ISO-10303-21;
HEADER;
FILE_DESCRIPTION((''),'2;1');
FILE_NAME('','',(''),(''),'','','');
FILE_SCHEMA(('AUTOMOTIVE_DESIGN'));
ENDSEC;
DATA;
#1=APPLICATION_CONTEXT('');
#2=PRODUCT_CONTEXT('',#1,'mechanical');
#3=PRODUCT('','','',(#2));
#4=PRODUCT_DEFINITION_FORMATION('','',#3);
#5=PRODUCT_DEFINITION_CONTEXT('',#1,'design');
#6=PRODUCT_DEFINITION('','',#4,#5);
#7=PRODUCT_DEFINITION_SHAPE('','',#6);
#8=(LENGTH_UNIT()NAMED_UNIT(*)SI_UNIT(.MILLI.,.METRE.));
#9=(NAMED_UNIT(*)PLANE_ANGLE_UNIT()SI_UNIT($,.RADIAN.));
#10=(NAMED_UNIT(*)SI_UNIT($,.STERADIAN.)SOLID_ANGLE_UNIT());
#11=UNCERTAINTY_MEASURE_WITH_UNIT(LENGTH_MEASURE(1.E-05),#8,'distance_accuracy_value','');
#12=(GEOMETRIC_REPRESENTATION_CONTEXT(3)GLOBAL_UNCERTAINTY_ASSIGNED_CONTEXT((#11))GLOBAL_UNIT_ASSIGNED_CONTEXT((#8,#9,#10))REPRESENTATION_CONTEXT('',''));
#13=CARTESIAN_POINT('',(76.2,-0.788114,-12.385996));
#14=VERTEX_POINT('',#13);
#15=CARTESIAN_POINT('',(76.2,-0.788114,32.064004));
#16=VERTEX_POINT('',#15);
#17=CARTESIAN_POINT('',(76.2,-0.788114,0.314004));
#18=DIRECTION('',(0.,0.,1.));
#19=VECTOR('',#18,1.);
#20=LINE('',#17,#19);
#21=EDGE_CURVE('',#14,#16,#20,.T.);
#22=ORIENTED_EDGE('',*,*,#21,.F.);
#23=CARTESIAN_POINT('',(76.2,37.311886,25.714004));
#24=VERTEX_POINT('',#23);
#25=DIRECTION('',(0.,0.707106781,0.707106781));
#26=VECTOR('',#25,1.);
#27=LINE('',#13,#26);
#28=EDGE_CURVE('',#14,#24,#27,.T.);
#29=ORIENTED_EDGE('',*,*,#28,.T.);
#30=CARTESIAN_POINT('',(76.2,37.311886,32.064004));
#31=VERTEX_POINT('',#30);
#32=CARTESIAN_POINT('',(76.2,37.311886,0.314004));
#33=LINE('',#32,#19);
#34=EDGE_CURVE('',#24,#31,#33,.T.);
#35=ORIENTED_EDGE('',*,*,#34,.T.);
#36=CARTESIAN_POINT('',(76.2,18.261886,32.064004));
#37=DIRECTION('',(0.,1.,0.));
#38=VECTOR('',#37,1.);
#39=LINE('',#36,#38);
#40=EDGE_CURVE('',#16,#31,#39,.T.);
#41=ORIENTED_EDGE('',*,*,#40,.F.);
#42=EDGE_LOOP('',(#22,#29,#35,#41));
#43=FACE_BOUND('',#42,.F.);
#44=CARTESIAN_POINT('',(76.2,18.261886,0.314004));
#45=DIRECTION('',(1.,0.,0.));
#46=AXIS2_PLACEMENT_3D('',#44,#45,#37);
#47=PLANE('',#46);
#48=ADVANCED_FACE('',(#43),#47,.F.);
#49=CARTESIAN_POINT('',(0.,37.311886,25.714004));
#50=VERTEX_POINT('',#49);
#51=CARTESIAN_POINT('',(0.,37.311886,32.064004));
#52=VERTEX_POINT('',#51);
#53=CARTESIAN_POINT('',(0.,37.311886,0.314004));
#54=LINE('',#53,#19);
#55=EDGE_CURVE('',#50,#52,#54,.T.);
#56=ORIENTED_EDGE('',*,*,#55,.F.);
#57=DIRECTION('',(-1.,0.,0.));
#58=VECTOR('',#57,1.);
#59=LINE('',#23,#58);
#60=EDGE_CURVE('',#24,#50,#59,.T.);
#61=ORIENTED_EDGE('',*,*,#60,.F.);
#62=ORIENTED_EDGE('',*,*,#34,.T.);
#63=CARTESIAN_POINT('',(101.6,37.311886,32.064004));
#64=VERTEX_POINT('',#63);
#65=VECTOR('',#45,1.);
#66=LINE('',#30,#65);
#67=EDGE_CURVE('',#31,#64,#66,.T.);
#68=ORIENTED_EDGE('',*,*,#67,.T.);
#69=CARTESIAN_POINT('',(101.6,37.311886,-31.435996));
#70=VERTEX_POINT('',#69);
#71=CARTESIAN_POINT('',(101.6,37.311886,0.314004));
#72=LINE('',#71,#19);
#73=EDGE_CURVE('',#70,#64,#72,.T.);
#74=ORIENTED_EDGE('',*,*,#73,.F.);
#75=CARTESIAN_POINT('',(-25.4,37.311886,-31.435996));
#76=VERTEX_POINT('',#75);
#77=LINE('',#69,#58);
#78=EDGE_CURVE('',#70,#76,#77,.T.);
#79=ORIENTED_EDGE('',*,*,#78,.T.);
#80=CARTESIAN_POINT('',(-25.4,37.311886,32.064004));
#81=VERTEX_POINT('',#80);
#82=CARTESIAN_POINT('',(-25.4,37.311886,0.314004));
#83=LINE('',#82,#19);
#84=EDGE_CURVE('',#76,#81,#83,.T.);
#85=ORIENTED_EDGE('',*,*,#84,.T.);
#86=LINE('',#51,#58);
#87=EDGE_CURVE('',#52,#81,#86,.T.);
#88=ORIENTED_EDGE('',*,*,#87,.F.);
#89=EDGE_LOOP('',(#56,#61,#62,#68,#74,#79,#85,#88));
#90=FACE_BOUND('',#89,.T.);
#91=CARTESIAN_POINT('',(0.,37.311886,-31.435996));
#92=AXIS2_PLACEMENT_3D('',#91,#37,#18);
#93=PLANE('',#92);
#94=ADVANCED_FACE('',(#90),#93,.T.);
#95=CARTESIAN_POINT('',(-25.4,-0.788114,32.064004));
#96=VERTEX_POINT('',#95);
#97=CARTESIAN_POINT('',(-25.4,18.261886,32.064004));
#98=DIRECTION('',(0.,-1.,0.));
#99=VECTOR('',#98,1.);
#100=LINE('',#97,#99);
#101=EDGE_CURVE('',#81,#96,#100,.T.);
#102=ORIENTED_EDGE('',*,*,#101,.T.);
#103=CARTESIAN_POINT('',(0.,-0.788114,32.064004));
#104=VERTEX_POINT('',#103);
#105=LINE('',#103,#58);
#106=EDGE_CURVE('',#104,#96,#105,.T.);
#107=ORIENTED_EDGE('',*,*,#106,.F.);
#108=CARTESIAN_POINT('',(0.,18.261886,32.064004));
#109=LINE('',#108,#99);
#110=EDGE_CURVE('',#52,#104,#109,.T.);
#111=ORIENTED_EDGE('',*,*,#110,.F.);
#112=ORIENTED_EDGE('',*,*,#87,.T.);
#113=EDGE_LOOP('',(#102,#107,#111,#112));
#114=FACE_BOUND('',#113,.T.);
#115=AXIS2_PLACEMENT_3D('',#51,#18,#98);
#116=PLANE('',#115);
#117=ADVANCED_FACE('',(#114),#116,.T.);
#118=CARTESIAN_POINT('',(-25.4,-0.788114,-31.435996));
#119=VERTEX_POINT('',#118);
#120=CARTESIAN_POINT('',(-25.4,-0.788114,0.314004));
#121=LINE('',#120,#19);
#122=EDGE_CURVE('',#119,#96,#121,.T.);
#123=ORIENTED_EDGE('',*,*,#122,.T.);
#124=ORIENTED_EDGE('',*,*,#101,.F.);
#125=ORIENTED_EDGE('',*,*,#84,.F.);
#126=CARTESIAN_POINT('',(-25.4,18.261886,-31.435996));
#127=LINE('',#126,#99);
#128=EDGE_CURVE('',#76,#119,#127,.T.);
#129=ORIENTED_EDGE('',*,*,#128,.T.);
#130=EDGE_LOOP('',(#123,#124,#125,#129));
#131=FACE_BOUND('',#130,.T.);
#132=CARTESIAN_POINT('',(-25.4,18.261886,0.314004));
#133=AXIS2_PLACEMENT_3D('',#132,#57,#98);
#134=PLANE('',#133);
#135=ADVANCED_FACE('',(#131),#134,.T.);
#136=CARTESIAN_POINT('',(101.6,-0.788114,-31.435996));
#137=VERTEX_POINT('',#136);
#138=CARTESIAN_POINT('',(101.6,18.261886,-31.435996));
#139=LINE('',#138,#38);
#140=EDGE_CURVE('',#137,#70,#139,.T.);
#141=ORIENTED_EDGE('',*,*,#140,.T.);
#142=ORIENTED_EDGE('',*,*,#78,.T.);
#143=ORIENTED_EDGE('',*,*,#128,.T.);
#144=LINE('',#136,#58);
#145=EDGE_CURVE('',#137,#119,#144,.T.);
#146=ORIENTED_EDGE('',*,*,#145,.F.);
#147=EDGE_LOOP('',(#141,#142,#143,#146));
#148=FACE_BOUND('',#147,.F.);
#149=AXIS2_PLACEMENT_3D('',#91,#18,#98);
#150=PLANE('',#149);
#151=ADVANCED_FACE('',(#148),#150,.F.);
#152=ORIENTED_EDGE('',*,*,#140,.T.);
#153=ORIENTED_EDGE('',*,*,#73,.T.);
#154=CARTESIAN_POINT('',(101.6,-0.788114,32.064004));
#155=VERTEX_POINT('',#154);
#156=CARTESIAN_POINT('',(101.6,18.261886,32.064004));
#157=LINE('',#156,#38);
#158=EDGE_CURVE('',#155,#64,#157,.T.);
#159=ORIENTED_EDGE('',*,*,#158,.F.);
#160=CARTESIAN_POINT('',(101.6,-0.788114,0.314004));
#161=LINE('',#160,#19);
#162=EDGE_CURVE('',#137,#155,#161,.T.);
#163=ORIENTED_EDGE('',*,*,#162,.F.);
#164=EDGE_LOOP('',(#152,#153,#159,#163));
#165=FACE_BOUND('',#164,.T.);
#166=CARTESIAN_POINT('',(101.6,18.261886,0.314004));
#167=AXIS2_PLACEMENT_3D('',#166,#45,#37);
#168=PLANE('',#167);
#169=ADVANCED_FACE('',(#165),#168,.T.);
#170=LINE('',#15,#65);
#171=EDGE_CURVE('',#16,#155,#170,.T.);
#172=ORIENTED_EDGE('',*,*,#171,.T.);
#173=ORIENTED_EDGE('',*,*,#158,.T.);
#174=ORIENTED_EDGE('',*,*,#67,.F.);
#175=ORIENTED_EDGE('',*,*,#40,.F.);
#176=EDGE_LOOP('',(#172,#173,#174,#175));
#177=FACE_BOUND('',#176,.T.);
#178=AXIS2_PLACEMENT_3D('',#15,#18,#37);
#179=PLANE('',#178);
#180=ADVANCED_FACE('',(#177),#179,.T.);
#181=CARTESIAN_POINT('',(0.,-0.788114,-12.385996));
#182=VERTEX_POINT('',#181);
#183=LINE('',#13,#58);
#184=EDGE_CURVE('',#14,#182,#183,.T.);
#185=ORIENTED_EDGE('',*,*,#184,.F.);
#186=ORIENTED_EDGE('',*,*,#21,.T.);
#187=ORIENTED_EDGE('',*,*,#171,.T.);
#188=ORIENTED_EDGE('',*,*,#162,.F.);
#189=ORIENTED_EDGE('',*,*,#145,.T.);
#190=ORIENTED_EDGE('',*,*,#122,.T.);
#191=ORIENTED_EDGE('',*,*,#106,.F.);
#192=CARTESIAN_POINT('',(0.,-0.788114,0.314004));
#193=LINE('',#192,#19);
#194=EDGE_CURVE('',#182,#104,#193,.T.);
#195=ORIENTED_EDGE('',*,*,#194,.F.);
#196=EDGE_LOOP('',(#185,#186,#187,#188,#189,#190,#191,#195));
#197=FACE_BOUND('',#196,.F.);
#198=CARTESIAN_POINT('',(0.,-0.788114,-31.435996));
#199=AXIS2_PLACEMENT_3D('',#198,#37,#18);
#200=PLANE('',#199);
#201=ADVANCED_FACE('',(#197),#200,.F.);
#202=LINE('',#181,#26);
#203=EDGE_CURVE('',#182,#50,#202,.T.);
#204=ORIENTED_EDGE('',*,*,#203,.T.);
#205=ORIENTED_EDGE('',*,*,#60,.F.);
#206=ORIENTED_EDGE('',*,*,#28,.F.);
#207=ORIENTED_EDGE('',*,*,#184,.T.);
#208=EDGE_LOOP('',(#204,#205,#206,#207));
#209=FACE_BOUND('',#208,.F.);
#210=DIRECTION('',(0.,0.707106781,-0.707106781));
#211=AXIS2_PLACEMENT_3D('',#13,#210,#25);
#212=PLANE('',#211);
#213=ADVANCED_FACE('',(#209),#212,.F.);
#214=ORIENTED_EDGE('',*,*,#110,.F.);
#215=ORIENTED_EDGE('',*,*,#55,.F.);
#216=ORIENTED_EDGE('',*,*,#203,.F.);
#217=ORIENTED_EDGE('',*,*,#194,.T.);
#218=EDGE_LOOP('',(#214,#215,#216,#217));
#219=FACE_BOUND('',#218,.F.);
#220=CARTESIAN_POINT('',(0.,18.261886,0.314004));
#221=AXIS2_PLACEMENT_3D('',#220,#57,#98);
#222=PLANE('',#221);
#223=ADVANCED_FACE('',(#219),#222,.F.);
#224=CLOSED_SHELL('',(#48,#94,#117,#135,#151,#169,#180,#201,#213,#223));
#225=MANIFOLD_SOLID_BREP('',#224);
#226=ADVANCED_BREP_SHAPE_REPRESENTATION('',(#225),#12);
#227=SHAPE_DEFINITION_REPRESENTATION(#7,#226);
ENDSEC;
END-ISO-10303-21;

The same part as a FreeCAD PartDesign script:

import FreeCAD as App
import Part
import Sketcher
Q = App.Units.Quantity


def add_polygon(sketch, points):
    """Adds a closed chain of lines whose ends are joined by coincident constraints."""
    first, n = sketch.GeometryCount, len(points)
    for a, b in zip(points, points[1:] + points[:1]):
        sketch.addGeometry(Part.LineSegment(App.Vector(*a, 0), App.Vector(*b, 0)), False)
    for i in range(n):
        sketch.addConstraint(Sketcher.Constraint("Coincident", first + i, 2, first + (i + 1) % n, 1))

doc = App.newDocument("Part")
body = doc.addObject("PartDesign::Body", "Body")

# Sketch on YZ plane
sketch1 = body.newObject("Sketcher::SketchObject", "Sketch")
sketch1.AttachmentSupport = (doc.getObject("YZ_Plane"), [""])
sketch1.MapMode = "FlatFace"
add_polygon(sketch1, [(-1, 32), (-1, -31), (37, -31), (37, 32)])  # lines 0-3
sketch1.addConstraint([
    Sketcher.Constraint("Vertical", 0),
    Sketcher.Constraint("Horizontal", 1),
    Sketcher.Constraint("Vertical", 2),
    Sketcher.Constraint("Horizontal", 3),
    Sketcher.Constraint("DistanceX", 1, 1, 1, 2, Q("1.5 in")),
    Sketcher.Constraint("DistanceY", 0, 2, 0, 1, Q("2.5 in")),
    Sketcher.Constraint("DistanceX", 0, 2, -1, 1, 0.788114),
    Sketcher.Constraint("DistanceY", 0, 2, -1, 1, 31.435996),
])
pad1 = body.newObject("PartDesign::Pad", "Pad")
pad1.Profile = sketch1
pad1.Length = Q("3 in")

# Sketch on YZ plane
sketch2 = body.newObject("Sketcher::SketchObject", "Sketch001")
sketch2.AttachmentSupport = (doc.getObject("YZ_Plane"), [""])
sketch2.MapMode = "FlatFace"
sketch2.AttachmentOffset = App.Placement(App.Vector(0, 0, 3 * 25.4), App.Rotation())
add_polygon(sketch2, [(-1, 32), (-1, -12), (37, 26), (37, 32)])  # lines 0-3
sketch2.addConstraint([
    Sketcher.Constraint("Vertical", 0),
    Sketcher.Constraint("Vertical", 2),
    Sketcher.Constraint("Horizontal", 3),
    Sketcher.Constraint("DistanceX", 3, 2, 3, 1, Q("1.5 in")),
    Sketcher.Constraint("Angle", 1, Q("45 deg")),
    Sketcher.Constraint("DistanceY", 0, 2, 0, 1, Q("1.75 in")),
    Sketcher.Constraint("DistanceX", 0, 2, -1, 1, 0.788114),
    Sketcher.Constraint("DistanceY", 0, 2, -1, 1, 12.385996),
])
pocket1 = body.newObject("PartDesign::Pocket", "Pocket")
pocket1.Profile = sketch2
pocket1.Length = Q("3 in")

# Sketch on YZ plane
sketch3 = body.newObject("Sketcher::SketchObject", "Sketch002")
sketch3.AttachmentSupport = (doc.getObject("YZ_Plane"), [""])
sketch3.MapMode = "FlatFace"
sketch3.AttachmentOffset = App.Placement(App.Vector(0, 0, 3 * 25.4), App.Rotation())
add_polygon(sketch3, [(-1, 32), (-1, -31), (37, -31), (37, 32)])  # lines 0-3
sketch3.addConstraint([
    Sketcher.Constraint("Vertical", 0),
    Sketcher.Constraint("Horizontal", 1),
    Sketcher.Constraint("Vertical", 2),
    Sketcher.Constraint("Horizontal", 3),
    Sketcher.Constraint("DistanceX", 1, 1, 1, 2, Q("1.5 in")),
    Sketcher.Constraint("DistanceY", 0, 2, 0, 1, Q("2.5 in")),
    Sketcher.Constraint("DistanceX", 0, 2, -1, 1, 0.788114),
    Sketcher.Constraint("DistanceY", 0, 2, -1, 1, 31.435996),
])
pad2 = body.newObject("PartDesign::Pad", "Pad001")
pad2.Profile = sketch3
pad2.Length = Q("1 in")

# Sketch on YZ plane
sketch4 = body.newObject("Sketcher::SketchObject", "Sketch003")
sketch4.AttachmentSupport = (doc.getObject("YZ_Plane"), [""])
sketch4.MapMode = "FlatFace"
add_polygon(sketch4, [(37, 32), (37, -31), (-1, -31), (-1, 32)])  # lines 0-3
sketch4.addConstraint([
    Sketcher.Constraint("Vertical", 0),
    Sketcher.Constraint("Horizontal", 1),
    Sketcher.Constraint("Vertical", 2),
    Sketcher.Constraint("Horizontal", 3),
    Sketcher.Constraint("DistanceX", 1, 2, 1, 1, Q("1.5 in")),
    Sketcher.Constraint("DistanceY", 0, 2, 0, 1, Q("2.5 in")),
    Sketcher.Constraint("DistanceX", -1, 1, 0, 2, 37.311886),
    Sketcher.Constraint("DistanceY", 0, 2, -1, 1, 31.435996),
])
pad3 = body.newObject("PartDesign::Pad", "Pad002")
pad3.Profile = sketch4
pad3.Length = Q("1 in")
pad3.Reversed = True

doc.recompute()
